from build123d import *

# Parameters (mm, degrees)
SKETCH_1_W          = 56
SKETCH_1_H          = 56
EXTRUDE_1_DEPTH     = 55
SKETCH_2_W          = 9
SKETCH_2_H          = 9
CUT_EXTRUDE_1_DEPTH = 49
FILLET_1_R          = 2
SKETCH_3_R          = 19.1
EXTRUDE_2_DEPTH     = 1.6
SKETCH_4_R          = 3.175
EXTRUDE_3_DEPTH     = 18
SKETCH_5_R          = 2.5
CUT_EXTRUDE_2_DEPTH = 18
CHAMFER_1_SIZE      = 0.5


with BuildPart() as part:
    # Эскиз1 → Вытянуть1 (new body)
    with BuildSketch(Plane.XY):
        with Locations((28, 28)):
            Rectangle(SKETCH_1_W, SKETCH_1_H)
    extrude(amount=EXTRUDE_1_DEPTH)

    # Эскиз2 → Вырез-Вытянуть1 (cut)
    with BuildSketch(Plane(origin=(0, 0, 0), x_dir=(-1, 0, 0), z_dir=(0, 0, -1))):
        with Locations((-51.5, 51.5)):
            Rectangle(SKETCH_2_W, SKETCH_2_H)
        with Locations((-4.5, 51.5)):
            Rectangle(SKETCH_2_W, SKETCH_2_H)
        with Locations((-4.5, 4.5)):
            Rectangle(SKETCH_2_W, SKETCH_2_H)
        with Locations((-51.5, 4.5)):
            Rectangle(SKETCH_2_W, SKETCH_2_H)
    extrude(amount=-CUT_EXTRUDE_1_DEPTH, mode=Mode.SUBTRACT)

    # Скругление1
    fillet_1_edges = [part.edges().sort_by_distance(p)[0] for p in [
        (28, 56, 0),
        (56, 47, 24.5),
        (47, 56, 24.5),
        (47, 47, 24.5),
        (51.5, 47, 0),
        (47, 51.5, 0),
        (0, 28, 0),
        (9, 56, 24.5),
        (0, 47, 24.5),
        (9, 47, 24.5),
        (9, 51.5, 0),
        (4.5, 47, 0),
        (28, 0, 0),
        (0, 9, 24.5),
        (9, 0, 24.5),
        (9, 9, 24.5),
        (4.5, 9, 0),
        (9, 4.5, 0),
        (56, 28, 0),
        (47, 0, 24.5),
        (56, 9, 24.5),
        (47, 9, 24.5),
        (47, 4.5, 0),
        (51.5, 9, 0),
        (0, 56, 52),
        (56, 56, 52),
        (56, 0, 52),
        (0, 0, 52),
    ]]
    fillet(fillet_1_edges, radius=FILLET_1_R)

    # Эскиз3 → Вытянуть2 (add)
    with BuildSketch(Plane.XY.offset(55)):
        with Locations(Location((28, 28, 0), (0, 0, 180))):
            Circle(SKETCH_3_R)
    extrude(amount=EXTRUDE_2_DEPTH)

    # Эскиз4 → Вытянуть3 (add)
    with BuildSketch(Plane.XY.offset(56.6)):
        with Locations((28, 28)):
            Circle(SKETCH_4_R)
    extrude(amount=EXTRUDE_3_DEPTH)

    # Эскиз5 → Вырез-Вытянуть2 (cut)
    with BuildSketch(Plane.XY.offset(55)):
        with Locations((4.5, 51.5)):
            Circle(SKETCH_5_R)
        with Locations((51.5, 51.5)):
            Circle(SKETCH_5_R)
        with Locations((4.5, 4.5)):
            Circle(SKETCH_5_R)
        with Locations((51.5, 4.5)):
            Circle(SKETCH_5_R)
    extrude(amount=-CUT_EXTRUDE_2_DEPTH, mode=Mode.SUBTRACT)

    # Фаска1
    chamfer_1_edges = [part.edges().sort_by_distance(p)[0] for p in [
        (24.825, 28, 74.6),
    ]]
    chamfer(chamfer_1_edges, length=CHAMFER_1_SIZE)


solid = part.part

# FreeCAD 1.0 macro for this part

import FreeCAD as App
import Part
import Sketcher
from FreeCAD import Vector
Q = App.Units.Quantity


def edges_at(feature, points):
    """Names of the edges that pass closest to the given points."""
    edges = feature.Shape.Edges
    near = lambda p: min(range(len(edges)), key=lambda i: edges[i].distToShape(Part.Vertex(*p))[0])
    return sorted({f"Edge{near(p) + 1}" for p in points})

doc = App.newDocument("Part")
params = doc.addObject("Spreadsheet::Sheet", "Params")
for row, (alias, value) in enumerate([
    ("sketch1_width", "56 mm"),
    ("pad1_length", "55 mm"),
    ("sketch2_width", "9 mm"),
    ("pocket1_length", "49 mm"),
    ("fillet_radius", "2 mm"),
    ("sketch3_diameter", "38.2 mm"),
    ("pad2_length", "1.6 mm"),
    ("sketch4_diameter", "6.35 mm"),
    ("pad3_length", "18 mm"),
    ("sketch5_diameter", "5 mm"),
    ("pocket2_length", "18 mm"),
    ("chamfer_size", "0.5 mm"),
], start=1):
    params.set(f"A{row}", alias)
    params.set(f"B{row}", "=" + value)
    params.setAlias(f"B{row}", alias)

body = doc.addObject("PartDesign::Body", "Body")

# Sketch on XY plane
sketch1 = body.newObject("Sketcher::SketchObject", "Sketch")
sketch1.AttachmentSupport = (doc.getObject("XY_Plane"), [""])
sketch1.MapMode = "FlatFace"
sketch1.addGeometry(Part.LineSegment(Vector(0, 56, 0), Vector(0, 0, 0)), False)
sketch1.addGeometry(Part.LineSegment(Vector(0, 0, 0), Vector(56, 0, 0)), False)
sketch1.addGeometry(Part.LineSegment(Vector(56, 0, 0), Vector(56, 56, 0)), False)
sketch1.addGeometry(Part.LineSegment(Vector(56, 56, 0), Vector(0, 56, 0)), False)
sketch1.addConstraint(Sketcher.Constraint("Coincident", 0, 2, 1, 1))
sketch1.addConstraint(Sketcher.Constraint("Coincident", 1, 2, 2, 1))
sketch1.addConstraint(Sketcher.Constraint("Coincident", 2, 2, 3, 1))
sketch1.addConstraint(Sketcher.Constraint("Coincident", 3, 2, 0, 1))
sketch1.addConstraint(Sketcher.Constraint("Vertical", 0))
sketch1.addConstraint(Sketcher.Constraint("Horizontal", 1))
sketch1.addConstraint(Sketcher.Constraint("Vertical", 2))
sketch1.addConstraint(Sketcher.Constraint("Horizontal", 3))
sketch1.addConstraint(Sketcher.Constraint("Coincident", 0, 2, -1, 1))
sketch1.addConstraint(Sketcher.Constraint("Equal", 3, 0))
sketch1.addConstraint(Sketcher.Constraint("DistanceX", 1, 1, 1, 2, Q("56 mm")))
sketch1.setExpression("Constraints[10]", "Params.sketch1_width")
pad1 = body.newObject("PartDesign::Pad", "Pad")
pad1.Profile = sketch1
pad1.setExpression("Length", "Params.pad1_length")

# Sketch on XY plane
sketch2 = body.newObject("Sketcher::SketchObject", "Sketch001")
sketch2.AttachmentSupport = (doc.getObject("XY_Plane"), [""])
sketch2.MapMode = "FlatFace"
sketch2.addGeometry(Part.LineSegment(Vector(56, 56, 0), Vector(56, 47, 0)), False)
sketch2.addGeometry(Part.LineSegment(Vector(56, 47, 0), Vector(47, 47, 0)), False)
sketch2.addGeometry(Part.LineSegment(Vector(47, 47, 0), Vector(47, 56, 0)), False)
sketch2.addGeometry(Part.LineSegment(Vector(47, 56, 0), Vector(56, 56, 0)), False)
sketch2.addGeometry(Part.LineSegment(Vector(9, 56, 0), Vector(9, 47, 0)), False)
sketch2.addGeometry(Part.LineSegment(Vector(9, 47, 0), Vector(0, 47, 0)), False)
sketch2.addGeometry(Part.LineSegment(Vector(0, 47, 0), Vector(0, 56, 0)), False)
sketch2.addGeometry(Part.LineSegment(Vector(0, 56, 0), Vector(9, 56, 0)), False)
sketch2.addGeometry(Part.LineSegment(Vector(9, 9, 0), Vector(9, 0, 0)), False)
sketch2.addGeometry(Part.LineSegment(Vector(9, 0, 0), Vector(0, 0, 0)), False)
sketch2.addGeometry(Part.LineSegment(Vector(0, 0, 0), Vector(0, 9, 0)), False)
sketch2.addGeometry(Part.LineSegment(Vector(0, 9, 0), Vector(9, 9, 0)), False)
sketch2.addGeometry(Part.LineSegment(Vector(56, 9, 0), Vector(56, 0, 0)), False)
sketch2.addGeometry(Part.LineSegment(Vector(56, 0, 0), Vector(47, 0, 0)), False)
sketch2.addGeometry(Part.LineSegment(Vector(47, 0, 0), Vector(47, 9, 0)), False)
sketch2.addGeometry(Part.LineSegment(Vector(47, 9, 0), Vector(56, 9, 0)), False)
sketch2.addConstraint(Sketcher.Constraint("Coincident", 0, 2, 1, 1))
sketch2.addConstraint(Sketcher.Constraint("Coincident", 1, 2, 2, 1))
sketch2.addConstraint(Sketcher.Constraint("Coincident", 2, 2, 3, 1))
sketch2.addConstraint(Sketcher.Constraint("Coincident", 3, 2, 0, 1))
sketch2.addConstraint(Sketcher.Constraint("Coincident", 4, 2, 5, 1))
sketch2.addConstraint(Sketcher.Constraint("Coincident", 5, 2, 6, 1))
sketch2.addConstraint(Sketcher.Constraint("Coincident", 6, 2, 7, 1))
sketch2.addConstraint(Sketcher.Constraint("Coincident", 7, 2, 4, 1))
sketch2.addConstraint(Sketcher.Constraint("Coincident", 8, 2, 9, 1))
sketch2.addConstraint(Sketcher.Constraint("Coincident", 9, 2, 10, 1))
sketch2.addConstraint(Sketcher.Constraint("Coincident", 10, 2, 11, 1))
sketch2.addConstraint(Sketcher.Constraint("Coincident", 11, 2, 8, 1))
sketch2.addConstraint(Sketcher.Constraint("Coincident", 12, 2, 13, 1))
sketch2.addConstraint(Sketcher.Constraint("Coincident", 13, 2, 14, 1))
sketch2.addConstraint(Sketcher.Constraint("Coincident", 14, 2, 15, 1))
sketch2.addConstraint(Sketcher.Constraint("Coincident", 15, 2, 12, 1))
sketch2.addConstraint(Sketcher.Constraint("Vertical", 0))
sketch2.addConstraint(Sketcher.Constraint("Horizontal", 1))
sketch2.addConstraint(Sketcher.Constraint("Vertical", 2))
sketch2.addConstraint(Sketcher.Constraint("Horizontal", 3))
sketch2.addConstraint(Sketcher.Constraint("Vertical", 4))
sketch2.addConstraint(Sketcher.Constraint("Horizontal", 5))
sketch2.addConstraint(Sketcher.Constraint("Vertical", 6))
sketch2.addConstraint(Sketcher.Constraint("Horizontal", 7))
sketch2.addConstraint(Sketcher.Constraint("Vertical", 8))
sketch2.addConstraint(Sketcher.Constraint("Horizontal", 9))
sketch2.addConstraint(Sketcher.Constraint("Vertical", 10))
sketch2.addConstraint(Sketcher.Constraint("Horizontal", 11))
sketch2.addConstraint(Sketcher.Constraint("Vertical", 12))
sketch2.addConstraint(Sketcher.Constraint("Horizontal", 13))
sketch2.addConstraint(Sketcher.Constraint("Vertical", 14))
sketch2.addConstraint(Sketcher.Constraint("Horizontal", 15))
sketch2.addConstraint(Sketcher.Constraint("Coincident", 9, 2, -1, 1))
sketch2.addConstraint(Sketcher.Constraint("PointOnObject", 5, 2, -2))
sketch2.addConstraint(Sketcher.Constraint("PointOnObject", 12, 2, -1))
sketch2.addConstraint(Sketcher.Constraint("Horizontal", 1, 2, 4, 2))
sketch2.addConstraint(Sketcher.Constraint("Horizontal", 3, 2, 6, 2))
sketch2.addConstraint(Sketcher.Constraint("Horizontal", 11, 2, 14, 2))
sketch2.addConstraint(Sketcher.Constraint("Vertical", 7, 2, 8, 2))
sketch2.addConstraint(Sketcher.Constraint("Vertical", 3, 2, 12, 2))
sketch2.addConstraint(Sketcher.Constraint("Vertical", 2, 2, 13, 2))
sketch2.addConstraint(Sketcher.Constraint("Equal", 3, 5))
sketch2.addConstraint(Sketcher.Constraint("Equal", 15, 0))
sketch2.addConstraint(Sketcher.Constraint("Equal", 6, 8))
sketch2.addConstraint(Sketcher.Constraint("DistanceX", 1, 2, 1, 1, Q("9 mm")))
sketch2.addConstraint(Sketcher.Constraint("DistanceX", -1, 1, 0, 2, Q("56 mm")))
sketch2.addConstraint(Sketcher.Constraint("DistanceY", -1, 1, 0, 2, Q("47 mm")))
sketch2.setExpression("Constraints[44]", "Params.sketch2_width")
pocket1 = body.newObject("PartDesign::Pocket", "Pocket")
pocket1.Profile = sketch2
pocket1.setExpression("Length", "Params.pocket1_length")
pocket1.Reversed = True
doc.recompute()

fillet = body.newObject("PartDesign::Fillet", "Fillet")
fillet.Base = (pocket1, edges_at(pocket1, [
    (28, 56, 0),
    (56, 47, 24.5),
    (47, 56, 24.5),
    (47, 47, 24.5),
    (51.5, 47, 0),
    (47, 51.5, 0),
    (0, 28, 0),
    (9, 56, 24.5),
    (0, 47, 24.5),
    (9, 47, 24.5),
    (9, 51.5, 0),
    (4.5, 47, 0),
    (28, 0, 0),
    (0, 9, 24.5),
    (9, 0, 24.5),
    (9, 9, 24.5),
    (4.5, 9, 0),
    (9, 4.5, 0),
    (56, 28, 0),
    (47, 0, 24.5),
    (56, 9, 24.5),
    (47, 9, 24.5),
    (47, 4.5, 0),
    (51.5, 9, 0),
    (0, 56, 52),
    (56, 56, 52),
    (56, 0, 52),
    (0, 0, 52),
]))
fillet.setExpression("Radius", "Params.fillet_radius")

# Sketch on XY plane
sketch3 = body.newObject("Sketcher::SketchObject", "Sketch002")
sketch3.AttachmentSupport = (doc.getObject("XY_Plane"), [""])
sketch3.MapMode = "FlatFace"
sketch3.AttachmentOffset = App.Placement(Vector(0, 0, 55), App.Rotation())
sketch3.addGeometry(Part.Circle(Vector(28, 28, 0), Vector(0, 0, 1), 19.1), False)
sketch3.addConstraint(Sketcher.Constraint("Diameter", 0, Q("38.2 mm")))
sketch3.addConstraint(Sketcher.Constraint("DistanceX", -1, 1, 0, 3, Q("28 mm")))
sketch3.addConstraint(Sketcher.Constraint("DistanceY", -1, 1, 0, 3, Q("28 mm")))
sketch3.setExpression("Constraints[0]", "Params.sketch3_diameter")
pad2 = body.newObject("PartDesign::Pad", "Pad001")
pad2.Profile = sketch3
pad2.setExpression("Length", "Params.pad2_length")

# Sketch on XY plane
sketch4 = body.newObject("Sketcher::SketchObject", "Sketch003")
sketch4.AttachmentSupport = (doc.getObject("XY_Plane"), [""])
sketch4.MapMode = "FlatFace"
sketch4.AttachmentOffset = App.Placement(Vector(0, 0, 56.6), App.Rotation())
sketch4.addGeometry(Part.Circle(Vector(28, 28, 0), Vector(0, 0, 1), 3.175), False)
sketch4.addConstraint(Sketcher.Constraint("Diameter", 0, Q("6.35 mm")))
sketch4.addConstraint(Sketcher.Constraint("DistanceX", -1, 1, 0, 3, Q("28 mm")))
sketch4.addConstraint(Sketcher.Constraint("DistanceY", -1, 1, 0, 3, Q("28 mm")))
sketch4.setExpression("Constraints[0]", "Params.sketch4_diameter")
pad3 = body.newObject("PartDesign::Pad", "Pad002")
pad3.Profile = sketch4
pad3.setExpression("Length", "Params.pad3_length")

# Sketch on XY plane
sketch5 = body.newObject("Sketcher::SketchObject", "Sketch004")
sketch5.AttachmentSupport = (doc.getObject("XY_Plane"), [""])
sketch5.MapMode = "FlatFace"
sketch5.AttachmentOffset = App.Placement(Vector(0, 0, 55), App.Rotation())
sketch5.addGeometry(Part.Circle(Vector(4.5, 51.5, 0), Vector(0, 0, 1), 2.5), False)
sketch5.addGeometry(Part.Circle(Vector(51.5, 51.5, 0), Vector(0, 0, 1), 2.5), False)
sketch5.addGeometry(Part.Circle(Vector(4.5, 4.5, 0), Vector(0, 0, 1), 2.5), False)
sketch5.addGeometry(Part.Circle(Vector(51.5, 4.5, 0), Vector(0, 0, 1), 2.5), False)
sketch5.addConstraint(Sketcher.Constraint("Equal", 0, 1))
sketch5.addConstraint(Sketcher.Constraint("Equal", 1, 2))
sketch5.addConstraint(Sketcher.Constraint("Equal", 2, 3))
sketch5.addConstraint(Sketcher.Constraint("Horizontal", 0, 3, 1, 3))
sketch5.addConstraint(Sketcher.Constraint("Horizontal", 2, 3, 3, 3))
sketch5.addConstraint(Sketcher.Constraint("Vertical", 0, 3, 2, 3))
sketch5.addConstraint(Sketcher.Constraint("Vertical", 1, 3, 3, 3))
sketch5.addConstraint(Sketcher.Constraint("Diameter", 0, Q("5 mm")))
sketch5.addConstraint(Sketcher.Constraint("DistanceX", 0, 3, 1, 3, Q("47 mm")))
sketch5.addConstraint(Sketcher.Constraint("DistanceY", 2, 3, 0, 3, Q("47 mm")))
sketch5.addConstraint(Sketcher.Constraint("DistanceX", -1, 1, 0, 3, Q("4.5 mm")))
sketch5.addConstraint(Sketcher.Constraint("DistanceY", -1, 1, 0, 3, Q("51.5 mm")))
sketch5.setExpression("Constraints[7]", "Params.sketch5_diameter")
pocket2 = body.newObject("PartDesign::Pocket", "Pocket001")
pocket2.Profile = sketch5
pocket2.setExpression("Length", "Params.pocket2_length")
doc.recompute()

chamfer = body.newObject("PartDesign::Chamfer", "Chamfer")
chamfer.Base = (pocket2, edges_at(pocket2, [(24.825, 28, 74.6)]))
chamfer.setExpression("Size", "Params.chamfer_size")

doc.recompute()
